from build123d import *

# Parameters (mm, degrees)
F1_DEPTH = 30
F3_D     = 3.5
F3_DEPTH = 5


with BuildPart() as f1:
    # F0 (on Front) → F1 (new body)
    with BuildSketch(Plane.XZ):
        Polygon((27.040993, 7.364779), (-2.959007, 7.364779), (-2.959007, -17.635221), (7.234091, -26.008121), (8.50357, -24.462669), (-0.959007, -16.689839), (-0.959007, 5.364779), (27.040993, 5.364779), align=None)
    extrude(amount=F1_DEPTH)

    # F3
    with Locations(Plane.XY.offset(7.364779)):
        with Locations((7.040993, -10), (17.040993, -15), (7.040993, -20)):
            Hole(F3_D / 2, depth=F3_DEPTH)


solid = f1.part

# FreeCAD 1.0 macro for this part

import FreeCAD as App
import Part
import Sketcher
from FreeCAD import Vector
Q = App.Units.Quantity

doc = App.newDocument("Part")
params = doc.addObject("Spreadsheet::Sheet", "Params")
for row, (alias, value) in enumerate([
    ("sketch1_width", "30 mm"),
    ("sketch1_width2", "28 mm"),
    ("sketch1_height", "25 mm"),
    ("sketch1_height2", "2 mm"),
    ("sketch1_length", "2 mm"),
    ("pad1_length", "30 mm"),
    ("sketch2_diameter", "3.5 mm"),
    ("hole_diameter", "3.5 mm"),
    ("hole_depth", "5 mm"),
], start=1):
    params.set(f"A{row}", alias)
    params.set(f"B{row}", "=" + value)
    params.setAlias(f"B{row}", alias)

body = doc.addObject("PartDesign::Body", "Body")

sketch1 = doc.addObject("Sketcher::SketchObject", "Sketch")
body.addObject(sketch1)
sketch1.AttachmentSupport = (doc.XZ_Plane, [""])
sketch1.MapMode = "FlatFace"
sketch1.addGeometry([
    Part.LineSegment(Vector(27, 7.4, 0), Vector(-3, 7.4, 0)),
    Part.LineSegment(Vector(-3, 7.4, 0), Vector(-3, -17.6, 0)),
    Part.LineSegment(Vector(-3, -17.6, 0), Vector(7.2, -26, 0)),
    Part.LineSegment(Vector(7.2, -26, 0), Vector(8.5, -24.5, 0)),
    Part.LineSegment(Vector(8.5, -24.5, 0), Vector(-1, -16.7, 0)),
    Part.LineSegment(Vector(-1, -16.7, 0), Vector(-1, 5.4, 0)),
    Part.LineSegment(Vector(-1, 5.4, 0), Vector(27, 5.4, 0)),
    Part.LineSegment(Vector(27, 5.4, 0), Vector(27, 7.4, 0)),
], False)
sketch1.addConstraint([
    Sketcher.Constraint("Coincident", 0, 2, 1, 1),
    Sketcher.Constraint("Coincident", 1, 2, 2, 1),
    Sketcher.Constraint("Coincident", 2, 2, 3, 1),
    Sketcher.Constraint("Coincident", 3, 2, 4, 1),
    Sketcher.Constraint("Coincident", 4, 2, 5, 1),
    Sketcher.Constraint("Coincident", 5, 2, 6, 1),
    Sketcher.Constraint("Coincident", 6, 2, 7, 1),
    Sketcher.Constraint("Coincident", 7, 2, 0, 1),
    Sketcher.Constraint("Horizontal", 0),
    Sketcher.Constraint("Vertical", 1),
    Sketcher.Constraint("Vertical", 5),
    Sketcher.Constraint("Horizontal", 6),
    Sketcher.Constraint("Vertical", 7),
    Sketcher.Constraint("Perpendicular", 2, 3),
    Sketcher.Constraint("Perpendicular", 3, 4),
    Sketcher.Constraint("DistanceX", 0, 2, 0, 1, Q("30 mm")),
    Sketcher.Constraint("DistanceX", 6, 1, 6, 2, Q("28 mm")),
    Sketcher.Constraint("DistanceY", 1, 2, 1, 1, Q("25 mm")),
    Sketcher.Constraint("DistanceY", 7, 1, 7, 2, Q("2 mm")),
    Sketcher.Constraint("Distance", 3, Q("2 mm")),
    Sketcher.Constraint("DistanceX", 1, 2, 2, 2, Q("10.193098 mm")),
    Sketcher.Constraint("DistanceY", 2, 2, 1, 2, Q("8.3729 mm")),
    Sketcher.Constraint("DistanceY", -1, 1, 0, 2, Q("7.364779 mm")),
    Sketcher.Constraint("DistanceX", -1, 1, 2, 2, Q("7.234091 mm")),
])
sketch1.setExpression("Constraints[15]", "Params.sketch1_width")
sketch1.setExpression("Constraints[16]", "Params.sketch1_width2")
sketch1.setExpression("Constraints[17]", "Params.sketch1_height")
sketch1.setExpression("Constraints[18]", "Params.sketch1_height2")
sketch1.setExpression("Constraints[19]", "Params.sketch1_length")
pad1 = doc.addObject("PartDesign::Pad", "Pad")
body.addObject(pad1)
pad1.Profile = sketch1
pad1.setExpression("Length", "Params.pad1_length")

sketch2 = doc.addObject("Sketcher::SketchObject", "Sketch001")
body.addObject(sketch2)
sketch2.AttachmentSupport = (doc.XY_Plane, [""])
sketch2.MapMode = "FlatFace"
sketch2.AttachmentOffset = App.Placement(Vector(0, 0, 7.364779), App.Rotation())
sketch2.addGeometry([
    Part.Circle(Vector(7, -10, 0), Vector(0, 0, 1), 1.8),
    Part.Circle(Vector(17, -15, 0), Vector(0, 0, 1), 1.8),
    Part.Circle(Vector(7, -20, 0), Vector(0, 0, 1), 1.8),
], False)
sketch2.addConstraint([
    Sketcher.Constraint("Equal", 0, 1),
    Sketcher.Constraint("Equal", 1, 2),
    Sketcher.Constraint("Vertical", 0, 3, 2, 3),
    Sketcher.Constraint("Diameter", 0, Q("3.5 mm")),
    Sketcher.Constraint("DistanceY", 0, 3, -1, 1, Q("10 mm")),
    Sketcher.Constraint("DistanceY", 1, 3, -1, 1, Q("15 mm")),
    Sketcher.Constraint("DistanceY", 2, 3, -1, 1, Q("20 mm")),
    Sketcher.Constraint("DistanceX", 0, 3, 1, 3, Q("10 mm")),
    Sketcher.Constraint("DistanceX", -1, 1, 0, 3, Q("7.040993 mm")),
])
sketch2.setExpression("Constraints[3]", "Params.sketch2_diameter")
doc.recompute()
hole = doc.addObject("PartDesign::Hole", "Hole")
body.addObject(hole)
hole.Profile = sketch2
hole.ThreadType = "None"
hole.setExpression("Diameter", "Params.hole_diameter")
hole.DepthType = "Dimension"
hole.setExpression("Depth", "Params.hole_depth")
hole.DrillPoint = "Flat"

doc.recompute()
